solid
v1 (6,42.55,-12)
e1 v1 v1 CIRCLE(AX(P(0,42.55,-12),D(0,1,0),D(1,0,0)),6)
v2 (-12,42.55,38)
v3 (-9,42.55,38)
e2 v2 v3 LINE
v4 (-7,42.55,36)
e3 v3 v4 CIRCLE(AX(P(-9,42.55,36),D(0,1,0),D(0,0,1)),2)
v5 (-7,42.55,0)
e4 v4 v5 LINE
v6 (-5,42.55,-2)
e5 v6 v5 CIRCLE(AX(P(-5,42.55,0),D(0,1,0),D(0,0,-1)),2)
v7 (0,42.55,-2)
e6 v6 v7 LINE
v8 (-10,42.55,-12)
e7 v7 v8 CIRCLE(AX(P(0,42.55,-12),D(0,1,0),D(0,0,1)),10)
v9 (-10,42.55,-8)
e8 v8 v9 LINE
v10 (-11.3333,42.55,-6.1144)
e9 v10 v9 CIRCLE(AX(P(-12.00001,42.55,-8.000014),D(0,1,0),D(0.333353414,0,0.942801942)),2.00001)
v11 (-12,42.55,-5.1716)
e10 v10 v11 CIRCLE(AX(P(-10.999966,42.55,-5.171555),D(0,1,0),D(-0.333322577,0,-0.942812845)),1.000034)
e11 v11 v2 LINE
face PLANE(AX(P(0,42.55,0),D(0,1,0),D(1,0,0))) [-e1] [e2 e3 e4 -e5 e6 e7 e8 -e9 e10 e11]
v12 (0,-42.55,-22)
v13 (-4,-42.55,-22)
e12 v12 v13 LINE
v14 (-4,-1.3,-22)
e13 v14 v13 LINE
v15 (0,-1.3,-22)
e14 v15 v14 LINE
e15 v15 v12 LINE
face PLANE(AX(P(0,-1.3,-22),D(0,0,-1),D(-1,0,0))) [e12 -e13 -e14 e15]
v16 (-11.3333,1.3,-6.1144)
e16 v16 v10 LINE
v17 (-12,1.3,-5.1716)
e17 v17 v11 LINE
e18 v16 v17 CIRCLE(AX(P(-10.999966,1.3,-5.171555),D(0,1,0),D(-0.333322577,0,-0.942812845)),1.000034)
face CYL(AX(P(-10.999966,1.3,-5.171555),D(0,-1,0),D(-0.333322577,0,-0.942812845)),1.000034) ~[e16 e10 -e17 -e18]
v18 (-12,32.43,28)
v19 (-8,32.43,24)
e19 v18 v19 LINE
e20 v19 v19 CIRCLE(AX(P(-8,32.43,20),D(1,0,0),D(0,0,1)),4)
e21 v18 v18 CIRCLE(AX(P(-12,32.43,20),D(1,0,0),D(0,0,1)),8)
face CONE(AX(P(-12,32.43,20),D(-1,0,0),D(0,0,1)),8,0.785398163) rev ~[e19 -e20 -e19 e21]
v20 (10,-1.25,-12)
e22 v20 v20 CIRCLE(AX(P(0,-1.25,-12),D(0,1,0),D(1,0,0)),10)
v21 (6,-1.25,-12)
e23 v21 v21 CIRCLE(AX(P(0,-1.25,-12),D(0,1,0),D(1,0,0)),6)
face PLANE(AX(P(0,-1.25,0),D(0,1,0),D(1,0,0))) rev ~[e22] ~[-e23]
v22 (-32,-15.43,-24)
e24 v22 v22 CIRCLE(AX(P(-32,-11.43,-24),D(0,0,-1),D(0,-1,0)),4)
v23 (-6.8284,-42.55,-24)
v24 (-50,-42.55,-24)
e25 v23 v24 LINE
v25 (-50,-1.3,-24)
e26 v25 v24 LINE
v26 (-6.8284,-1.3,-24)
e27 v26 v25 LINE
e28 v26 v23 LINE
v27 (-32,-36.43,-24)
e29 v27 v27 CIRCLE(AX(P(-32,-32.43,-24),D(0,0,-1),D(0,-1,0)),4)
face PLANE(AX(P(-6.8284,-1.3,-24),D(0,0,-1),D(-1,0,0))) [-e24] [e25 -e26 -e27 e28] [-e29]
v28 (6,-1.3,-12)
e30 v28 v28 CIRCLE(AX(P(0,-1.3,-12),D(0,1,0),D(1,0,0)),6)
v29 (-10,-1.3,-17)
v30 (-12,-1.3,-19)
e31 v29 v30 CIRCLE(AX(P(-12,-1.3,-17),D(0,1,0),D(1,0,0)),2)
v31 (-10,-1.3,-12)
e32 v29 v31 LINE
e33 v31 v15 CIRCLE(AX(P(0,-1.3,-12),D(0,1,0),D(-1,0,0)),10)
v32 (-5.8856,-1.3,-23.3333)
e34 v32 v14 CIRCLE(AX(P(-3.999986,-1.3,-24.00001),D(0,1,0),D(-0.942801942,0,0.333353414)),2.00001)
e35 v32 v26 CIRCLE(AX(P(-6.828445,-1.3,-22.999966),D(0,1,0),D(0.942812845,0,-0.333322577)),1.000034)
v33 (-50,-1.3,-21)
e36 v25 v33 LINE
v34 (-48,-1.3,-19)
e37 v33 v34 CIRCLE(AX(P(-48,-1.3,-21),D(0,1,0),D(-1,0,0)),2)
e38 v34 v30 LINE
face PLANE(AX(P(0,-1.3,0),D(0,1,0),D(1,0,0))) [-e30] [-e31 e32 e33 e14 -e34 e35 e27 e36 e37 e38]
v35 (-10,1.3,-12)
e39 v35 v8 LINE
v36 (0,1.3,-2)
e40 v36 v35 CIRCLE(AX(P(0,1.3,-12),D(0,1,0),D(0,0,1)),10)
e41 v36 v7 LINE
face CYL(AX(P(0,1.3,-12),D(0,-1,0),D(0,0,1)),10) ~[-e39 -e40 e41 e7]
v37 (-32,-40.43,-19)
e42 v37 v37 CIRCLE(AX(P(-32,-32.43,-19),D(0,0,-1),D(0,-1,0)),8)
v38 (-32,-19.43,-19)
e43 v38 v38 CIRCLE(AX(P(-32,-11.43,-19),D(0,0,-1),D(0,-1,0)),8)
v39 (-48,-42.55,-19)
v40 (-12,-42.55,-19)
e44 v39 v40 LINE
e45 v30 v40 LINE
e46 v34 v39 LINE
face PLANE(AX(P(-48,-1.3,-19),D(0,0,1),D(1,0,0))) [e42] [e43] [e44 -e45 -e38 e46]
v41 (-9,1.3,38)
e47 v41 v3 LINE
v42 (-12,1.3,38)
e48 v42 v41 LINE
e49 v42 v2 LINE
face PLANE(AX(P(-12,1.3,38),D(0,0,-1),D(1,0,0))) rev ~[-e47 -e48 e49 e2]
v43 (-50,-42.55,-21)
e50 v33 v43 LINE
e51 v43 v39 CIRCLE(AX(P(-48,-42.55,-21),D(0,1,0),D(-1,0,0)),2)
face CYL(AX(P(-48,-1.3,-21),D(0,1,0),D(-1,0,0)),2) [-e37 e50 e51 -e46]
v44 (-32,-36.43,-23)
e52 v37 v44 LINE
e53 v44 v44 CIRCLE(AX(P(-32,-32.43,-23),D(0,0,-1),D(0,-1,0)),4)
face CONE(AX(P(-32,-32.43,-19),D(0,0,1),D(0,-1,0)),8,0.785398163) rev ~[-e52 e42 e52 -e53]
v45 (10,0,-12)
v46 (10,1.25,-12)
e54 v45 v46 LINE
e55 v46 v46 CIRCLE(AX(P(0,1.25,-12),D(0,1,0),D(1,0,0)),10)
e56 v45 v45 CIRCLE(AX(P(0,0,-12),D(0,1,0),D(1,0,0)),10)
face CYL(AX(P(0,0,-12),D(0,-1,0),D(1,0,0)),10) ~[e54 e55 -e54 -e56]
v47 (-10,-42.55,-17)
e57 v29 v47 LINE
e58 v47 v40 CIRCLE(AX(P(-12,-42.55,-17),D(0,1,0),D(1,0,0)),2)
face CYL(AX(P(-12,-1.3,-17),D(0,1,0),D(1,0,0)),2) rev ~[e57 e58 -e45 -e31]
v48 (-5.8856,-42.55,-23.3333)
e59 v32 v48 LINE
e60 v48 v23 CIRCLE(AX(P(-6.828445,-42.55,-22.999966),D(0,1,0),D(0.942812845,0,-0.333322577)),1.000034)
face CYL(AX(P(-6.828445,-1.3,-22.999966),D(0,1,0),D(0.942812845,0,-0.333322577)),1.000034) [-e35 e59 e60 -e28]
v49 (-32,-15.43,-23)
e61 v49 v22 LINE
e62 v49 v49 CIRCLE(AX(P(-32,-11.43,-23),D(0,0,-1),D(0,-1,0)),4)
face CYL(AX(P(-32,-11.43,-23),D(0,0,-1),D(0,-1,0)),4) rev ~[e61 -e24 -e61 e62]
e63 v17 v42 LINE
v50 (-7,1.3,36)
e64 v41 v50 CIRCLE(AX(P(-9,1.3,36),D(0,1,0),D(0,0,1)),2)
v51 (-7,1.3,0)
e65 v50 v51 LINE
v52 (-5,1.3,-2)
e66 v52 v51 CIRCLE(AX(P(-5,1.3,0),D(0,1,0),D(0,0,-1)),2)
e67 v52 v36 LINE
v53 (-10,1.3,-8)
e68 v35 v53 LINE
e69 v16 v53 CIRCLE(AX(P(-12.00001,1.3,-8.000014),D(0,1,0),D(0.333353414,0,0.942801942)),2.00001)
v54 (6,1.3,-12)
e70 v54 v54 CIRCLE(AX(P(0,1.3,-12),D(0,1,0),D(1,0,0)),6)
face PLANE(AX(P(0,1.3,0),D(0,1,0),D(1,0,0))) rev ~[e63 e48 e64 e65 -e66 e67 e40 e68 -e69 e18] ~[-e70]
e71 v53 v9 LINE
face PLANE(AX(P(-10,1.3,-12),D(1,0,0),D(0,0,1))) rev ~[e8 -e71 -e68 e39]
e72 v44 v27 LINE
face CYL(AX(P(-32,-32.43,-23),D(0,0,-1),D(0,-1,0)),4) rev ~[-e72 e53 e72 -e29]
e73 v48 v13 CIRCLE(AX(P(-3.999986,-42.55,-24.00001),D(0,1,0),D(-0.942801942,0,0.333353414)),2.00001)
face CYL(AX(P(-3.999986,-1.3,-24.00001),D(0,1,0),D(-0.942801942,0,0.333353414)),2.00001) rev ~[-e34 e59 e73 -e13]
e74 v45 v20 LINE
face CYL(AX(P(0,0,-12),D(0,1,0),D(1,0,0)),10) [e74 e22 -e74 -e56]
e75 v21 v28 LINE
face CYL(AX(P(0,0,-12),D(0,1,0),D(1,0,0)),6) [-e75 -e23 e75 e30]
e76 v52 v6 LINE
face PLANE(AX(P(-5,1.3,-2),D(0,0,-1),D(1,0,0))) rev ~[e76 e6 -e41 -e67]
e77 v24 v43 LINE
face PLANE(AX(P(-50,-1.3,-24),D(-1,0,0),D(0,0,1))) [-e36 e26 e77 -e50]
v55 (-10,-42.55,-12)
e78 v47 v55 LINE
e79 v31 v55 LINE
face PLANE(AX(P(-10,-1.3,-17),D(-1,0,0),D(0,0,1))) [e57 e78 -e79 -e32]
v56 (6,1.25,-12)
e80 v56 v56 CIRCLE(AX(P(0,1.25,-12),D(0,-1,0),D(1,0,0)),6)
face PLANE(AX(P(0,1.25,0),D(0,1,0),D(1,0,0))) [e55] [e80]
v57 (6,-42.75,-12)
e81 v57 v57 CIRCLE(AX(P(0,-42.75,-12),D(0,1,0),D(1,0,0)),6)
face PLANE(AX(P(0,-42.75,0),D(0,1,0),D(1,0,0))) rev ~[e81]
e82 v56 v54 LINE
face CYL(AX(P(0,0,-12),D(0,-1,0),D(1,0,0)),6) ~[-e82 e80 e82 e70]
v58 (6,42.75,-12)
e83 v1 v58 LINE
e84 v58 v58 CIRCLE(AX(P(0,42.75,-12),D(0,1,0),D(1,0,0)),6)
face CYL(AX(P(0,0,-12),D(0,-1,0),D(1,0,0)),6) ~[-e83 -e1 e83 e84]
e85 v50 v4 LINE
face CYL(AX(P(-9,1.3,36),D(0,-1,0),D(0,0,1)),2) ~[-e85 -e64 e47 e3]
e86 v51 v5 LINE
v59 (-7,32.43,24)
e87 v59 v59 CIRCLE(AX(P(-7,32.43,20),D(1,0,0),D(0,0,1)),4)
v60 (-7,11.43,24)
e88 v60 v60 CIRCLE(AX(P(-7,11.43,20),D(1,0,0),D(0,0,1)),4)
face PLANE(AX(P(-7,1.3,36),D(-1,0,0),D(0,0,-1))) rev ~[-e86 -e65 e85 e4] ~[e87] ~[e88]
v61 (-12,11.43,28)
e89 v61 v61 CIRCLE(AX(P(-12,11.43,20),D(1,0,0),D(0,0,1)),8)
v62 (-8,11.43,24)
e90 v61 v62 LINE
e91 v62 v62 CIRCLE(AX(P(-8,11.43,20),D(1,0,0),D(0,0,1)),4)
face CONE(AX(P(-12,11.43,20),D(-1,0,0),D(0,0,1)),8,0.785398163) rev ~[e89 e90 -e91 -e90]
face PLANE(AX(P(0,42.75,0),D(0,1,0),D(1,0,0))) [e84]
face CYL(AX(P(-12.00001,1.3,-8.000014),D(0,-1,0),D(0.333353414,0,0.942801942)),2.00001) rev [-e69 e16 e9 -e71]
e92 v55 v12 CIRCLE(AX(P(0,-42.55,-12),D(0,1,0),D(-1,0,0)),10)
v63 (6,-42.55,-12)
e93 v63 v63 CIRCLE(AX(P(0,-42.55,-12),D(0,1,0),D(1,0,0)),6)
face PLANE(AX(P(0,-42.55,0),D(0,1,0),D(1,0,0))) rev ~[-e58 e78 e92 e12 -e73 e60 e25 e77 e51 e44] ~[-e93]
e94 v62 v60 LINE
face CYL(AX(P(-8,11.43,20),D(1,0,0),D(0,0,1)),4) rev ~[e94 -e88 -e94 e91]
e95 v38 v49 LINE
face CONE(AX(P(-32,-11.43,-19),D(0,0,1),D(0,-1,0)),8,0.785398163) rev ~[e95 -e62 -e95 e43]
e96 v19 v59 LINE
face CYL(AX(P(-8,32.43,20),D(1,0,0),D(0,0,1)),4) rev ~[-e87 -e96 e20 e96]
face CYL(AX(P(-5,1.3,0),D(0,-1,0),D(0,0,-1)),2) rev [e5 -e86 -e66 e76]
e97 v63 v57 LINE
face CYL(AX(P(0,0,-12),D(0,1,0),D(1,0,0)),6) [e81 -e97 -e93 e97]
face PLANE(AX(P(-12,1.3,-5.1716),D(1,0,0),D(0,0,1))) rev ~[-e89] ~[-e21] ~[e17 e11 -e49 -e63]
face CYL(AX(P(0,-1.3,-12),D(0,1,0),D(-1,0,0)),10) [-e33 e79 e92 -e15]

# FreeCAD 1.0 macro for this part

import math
import FreeCAD as App
import Part
import Sketcher

V = App.Vector

doc = App.newDocument("Part")
body = doc.addObject("PartDesign::Body", "Body")

# Sketch on XZ plane
sketch1 = doc.addObject("Sketcher::SketchObject", "Sketch")
body.addObject(sketch1)
sketch1.AttachmentSupport = (doc.XZ_Plane, [""])
sketch1.MapMode = "FlatFace"
sketch1.addGeometry(Part.Circle(V(0, -12, 0), V(0, 0, 1), 10), False)
sketch1.addConstraint(Sketcher.Constraint("PointOnObject", 0, 3, -2))
sketch1.addConstraint(Sketcher.Constraint("Diameter", 0, 20.0))
sketch1.addConstraint(Sketcher.Constraint("DistanceY", 0, 3, -1, 1, 12.0))
pad1 = doc.addObject("PartDesign::Pad", "Pad")
body.addObject(pad1)
pad1.Profile = sketch1
pad1.Length = 2.5
pad1.Midplane = True

# Sketch on XZ plane
sketch2 = doc.addObject("Sketcher::SketchObject", "Sketch001")
body.addObject(sketch2)
sketch2.AttachmentSupport = (doc.XZ_Plane, [""])
sketch2.MapMode = "FlatFace"
sketch2.addGeometry(Part.Circle(V(0, -12, 0), V(0, 0, 1), 6), False)
sketch2.addConstraint(Sketcher.Constraint("PointOnObject", 0, 3, -2))
sketch2.addConstraint(Sketcher.Constraint("Diameter", 0, 12.0))
sketch2.addConstraint(Sketcher.Constraint("DistanceY", 0, 3, -1, 1, 12.0))
pad2 = doc.addObject("PartDesign::Pad", "Pad001")
body.addObject(pad2)
pad2.Profile = sketch2
pad2.Length = 85.5
pad2.Midplane = True

# Sketch on XZ plane
sketch3 = doc.addObject("Sketcher::SketchObject", "Sketch002")
body.addObject(sketch3)
sketch3.AttachmentSupport = (doc.XZ_Plane, [""])
sketch3.MapMode = "FlatFace"
sketch3.AttachmentOffset = App.Placement(V(0, 0, 1.3), App.Rotation())
sketch3.addGeometry(Part.LineSegment(V(-6.8, -24, 0), V(-50, -24, 0)), False)
sketch3.addGeometry(Part.LineSegment(V(-50, -24, 0), V(-50, -21, 0)), False)
sketch3.addGeometry(Part.ArcOfCircle(Part.Circle(V(-48, -21, 0), V(0, 0, 1), 2), math.radians(90), math.radians(180)), False)
sketch3.addGeometry(Part.LineSegment(V(-48, -19, 0), V(-12, -19, 0)), False)
sketch3.addGeometry(Part.ArcOfCircle(Part.Circle(V(-12, -17, 0), V(0, 0, 1), 2), math.radians(-90), math.radians(0)), False)
sketch3.addGeometry(Part.LineSegment(V(-10, -17, 0), V(-10, -12, 0)), False)
sketch3.addGeometry(Part.ArcOfCircle(Part.Circle(V(0, -12, 0), V(0, 0, 1), 10), math.radians(-90), math.radians(180)), False)
sketch3.addGeometry(Part.LineSegment(V(0, -22, 0), V(-4, -22, 0)), False)
sketch3.addGeometry(Part.ArcOfCircle(Part.Circle(V(-4, -24, 0), V(0, 0, 1), 2), math.radians(90), math.radians(161)), False)
sketch3.addGeometry(Part.ArcOfCircle(Part.Circle(V(-6.8, -23, 0), V(0, 0, 1), 1), math.radians(-90), math.radians(-19)), False)
sketch3.addGeometry(Part.Circle(V(0, -12, 0), V(0, 0, 1), 6), False)
sketch3.addConstraint(Sketcher.Constraint("Coincident", 0, 2, 1, 1))
sketch3.addConstraint(Sketcher.Constraint("Tangent", 1, 2, 2, 2))
sketch3.addConstraint(Sketcher.Constraint("Tangent", 2, 1, 3, 1))
sketch3.addConstraint(Sketcher.Constraint("Tangent", 3, 2, 4, 1))
sketch3.addConstraint(Sketcher.Constraint("Tangent", 4, 2, 5, 1))
sketch3.addConstraint(Sketcher.Constraint("Tangent", 5, 2, 6, 2))
sketch3.addConstraint(Sketcher.Constraint("Tangent", 6, 1, 7, 1))
sketch3.addConstraint(Sketcher.Constraint("Tangent", 7, 2, 8, 1))
sketch3.addConstraint(Sketcher.Constraint("Tangent", 8, 2, 9, 2))
sketch3.addConstraint(Sketcher.Constraint("Tangent", 9, 1, 0, 1))
sketch3.addConstraint(Sketcher.Constraint("Horizontal", 0))
sketch3.addConstraint(Sketcher.Constraint("Vertical", 1))
sketch3.addConstraint(Sketcher.Constraint("Horizontal", 3))
sketch3.addConstraint(Sketcher.Constraint("Vertical", 5))
sketch3.addConstraint(Sketcher.Constraint("Horizontal", 7))
sketch3.addConstraint(Sketcher.Constraint("Coincident", 10, 3, 6, 3))
sketch3.addConstraint(Sketcher.Constraint("Equal", 2, 4))
sketch3.addConstraint(Sketcher.Constraint("Equal", 4, 8))
sketch3.addConstraint(Sketcher.Constraint("PointOnObject", 6, 3, -2))
sketch3.addConstraint(Sketcher.Constraint("Horizontal", 8, 3, 0, 2))
sketch3.addConstraint(Sketcher.Constraint("Diameter", 10, 12.0))
sketch3.addConstraint(Sketcher.Constraint("Radius", 2, 2.0))
sketch3.addConstraint(Sketcher.Constraint("Radius", 6, 10.0))
sketch3.addConstraint(Sketcher.Constraint("Radius", 9, 1.0))
sketch3.addConstraint(Sketcher.Constraint("DistanceX", 3, 1, 3, 2, 36.0))
sketch3.addConstraint(Sketcher.Constraint("DistanceX", 7, 2, 7, 1, 4.0))
sketch3.addConstraint(Sketcher.Constraint("DistanceY", 1, 1, 1, 2, 3.0))
sketch3.addConstraint(Sketcher.Constraint("DistanceY", 2, 3, -1, 1, 21.0))
pad3 = doc.addObject("PartDesign::Pad", "Pad002")
body.addObject(pad3)
pad3.Profile = sketch3
pad3.Length = 41.25

# Sketch on XZ plane
sketch4 = doc.addObject("Sketcher::SketchObject", "Sketch003")
body.addObject(sketch4)
sketch4.AttachmentSupport = (doc.XZ_Plane, [""])
sketch4.MapMode = "FlatFace"
sketch4.AttachmentOffset = App.Placement(V(0, 0, -1.3), App.Rotation())
sketch4.addGeometry(Part.LineSegment(V(-12, -5.2, 0), V(-12, 38, 0)), False)
sketch4.addGeometry(Part.LineSegment(V(-12, 38, 0), V(-9, 38, 0)), False)
sketch4.addGeometry(Part.ArcOfCircle(Part.Circle(V(-9, 36, 0), V(0, 0, 1), 2), math.radians(0), math.radians(90)), False)
sketch4.addGeometry(Part.LineSegment(V(-7, 36, 0), V(-7, 0, 0)), False)
sketch4.addGeometry(Part.ArcOfCircle(Part.Circle(V(-5, 0, 0), V(0, 0, 1), 2), math.radians(180), math.radians(270)), False)
sketch4.addGeometry(Part.LineSegment(V(-5, -2, 0), V(0, -2, 0)), False)
sketch4.addGeometry(Part.ArcOfCircle(Part.Circle(V(0, -12, 0), V(0, 0, 1), 10), math.radians(180), math.radians(450)), False)
sketch4.addGeometry(Part.LineSegment(V(-10, -12, 0), V(-10, -8, 0)), False)
sketch4.addGeometry(Part.ArcOfCircle(Part.Circle(V(-12, -8, 0), V(0, 0, 1), 2), math.radians(0), math.radians(71)), False)
sketch4.addGeometry(Part.ArcOfCircle(Part.Circle(V(-11, -5.2, 0), V(0, 0, 1), 1), math.radians(180), math.radians(251)), False)
sketch4.addGeometry(Part.Circle(V(0, -12, 0), V(0, 0, 1), 6), False)
sketch4.addConstraint(Sketcher.Constraint("Coincident", 0, 2, 1, 1))
sketch4.addConstraint(Sketcher.Constraint("Tangent", 1, 2, 2, 2))
sketch4.addConstraint(Sketcher.Constraint("Tangent", 2, 1, 3, 1))
sketch4.addConstraint(Sketcher.Constraint("Tangent", 3, 2, 4, 1))
sketch4.addConstraint(Sketcher.Constraint("Tangent", 4, 2, 5, 1))
sketch4.addConstraint(Sketcher.Constraint("Tangent", 5, 2, 6, 2))
sketch4.addConstraint(Sketcher.Constraint("Tangent", 6, 1, 7, 1))
sketch4.addConstraint(Sketcher.Constraint("Tangent", 7, 2, 8, 1))
sketch4.addConstraint(Sketcher.Constraint("Tangent", 8, 2, 9, 2))
sketch4.addConstraint(Sketcher.Constraint("Tangent", 9, 1, 0, 1))
sketch4.addConstraint(Sketcher.Constraint("Vertical", 0))
sketch4.addConstraint(Sketcher.Constraint("Horizontal", 1))
sketch4.addConstraint(Sketcher.Constraint("Vertical", 3))
sketch4.addConstraint(Sketcher.Constraint("Horizontal", 5))
sketch4.addConstraint(Sketcher.Constraint("Vertical", 7))
sketch4.addConstraint(Sketcher.Constraint("Coincident", 10, 3, 6, 3))
sketch4.addConstraint(Sketcher.Constraint("Equal", 2, 4))
sketch4.addConstraint(Sketcher.Constraint("Equal", 4, 8))
sketch4.addConstraint(Sketcher.Constraint("PointOnObject", 4, 3, -1))
sketch4.addConstraint(Sketcher.Constraint("PointOnObject", 6, 3, -2))
sketch4.addConstraint(Sketcher.Constraint("Vertical", 8, 3, 0, 2))
sketch4.addConstraint(Sketcher.Constraint("Diameter", 10, 12.0))
sketch4.addConstraint(Sketcher.Constraint("Radius", 2, 2.0))
sketch4.addConstraint(Sketcher.Constraint("Radius", 6, 10.0))
sketch4.addConstraint(Sketcher.Constraint("Radius", 9, 1.0))
sketch4.addConstraint(Sketcher.Constraint("DistanceX", 1, 1, 1, 2, 3.0))
sketch4.addConstraint(Sketcher.Constraint("DistanceY", 3, 2, 3, 1, 36.0))
sketch4.addConstraint(Sketcher.Constraint("DistanceY", 7, 1, 7, 2, 4.0))
pad4 = doc.addObject("PartDesign::Pad", "Pad003")
body.addObject(pad4)
pad4.Profile = sketch4
pad4.Length = 41.25
pad4.Reversed = True

# Sketch on YZ plane
sketch5 = doc.addObject("Sketcher::SketchObject", "Sketch004")
body.addObject(sketch5)
sketch5.AttachmentSupport = (doc.YZ_Plane, [""])
sketch5.MapMode = "FlatFace"
sketch5.AttachmentOffset = App.Placement(V(0, 0, -12), App.Rotation())
sketch5.addGeometry(Part.Circle(V(11.4, 20, 0), V(0, 0, 1), 4), False)
sketch5.addConstraint(Sketcher.Constraint("Diameter", 0, 8.0))
sketch5.addConstraint(Sketcher.Constraint("DistanceY", -1, 1, 0, 3, 20.0))
sketch5.addConstraint(Sketcher.Constraint("DistanceX", -1, 1, 0, 3, 11.43))
doc.recompute()
hole = doc.addObject("PartDesign::Hole", "Hole")
body.addObject(hole)
hole.Profile = sketch5
hole.ThreadType = "None"
hole.Diameter = 8
hole.DepthType = "Dimension"
hole.Depth = 5
hole.DrillPoint = "Flat"
hole.HoleCutType = "Countersink"
hole.HoleCutDiameter = 16
hole.HoleCutCountersinkAngle = 90
hole.Reversed = True

# Sketch on YZ plane
sketch6 = doc.addObject("Sketcher::SketchObject", "Sketch005")
body.addObject(sketch6)
sketch6.AttachmentSupport = (doc.YZ_Plane, [""])
sketch6.MapMode = "FlatFace"
sketch6.AttachmentOffset = App.Placement(V(0, 0, -12), App.Rotation())
sketch6.addGeometry(Part.Circle(V(32.4, 20, 0), V(0, 0, 1), 4), False)
sketch6.addConstraint(Sketcher.Constraint("Diameter", 0, 8.0))
sketch6.addConstraint(Sketcher.Constraint("DistanceY", -1, 1, 0, 3, 20.0))
sketch6.addConstraint(Sketcher.Constraint("DistanceX", -1, 1, 0, 3, 32.43))
doc.recompute()
hole2 = doc.addObject("PartDesign::Hole", "Hole001")
body.addObject(hole2)
hole2.Profile = sketch6
hole2.ThreadType = "None"
hole2.Diameter = 8
hole2.DepthType = "Dimension"
hole2.Depth = 5
hole2.DrillPoint = "Flat"
hole2.HoleCutType = "Countersink"
hole2.HoleCutDiameter = 16
hole2.HoleCutCountersinkAngle = 90
hole2.Reversed = True

# Sketch on XY plane
sketch7 = doc.addObject("Sketcher::SketchObject", "Sketch006")
body.addObject(sketch7)
sketch7.AttachmentSupport = (doc.XY_Plane, [""])
sketch7.MapMode = "FlatFace"
sketch7.AttachmentOffset = App.Placement(V(0, 0, -19), App.Rotation())
sketch7.addGeometry(Part.Circle(V(-32, -11.4, 0), V(0, 0, 1), 4), False)
sketch7.addConstraint(Sketcher.Constraint("Diameter", 0, 8.0))
sketch7.addConstraint(Sketcher.Constraint("DistanceX", 0, 3, -1, 1, 32.0))
sketch7.addConstraint(Sketcher.Constraint("DistanceY", 0, 3, -1, 1, 11.43))
doc.recompute()
hole3 = doc.addObject("PartDesign::Hole", "Hole002")
body.addObject(hole3)
hole3.Profile = sketch7
hole3.ThreadType = "None"
hole3.Diameter = 8
hole3.DepthType = "Dimension"
hole3.Depth = 5
hole3.DrillPoint = "Flat"
hole3.HoleCutType = "Countersink"
hole3.HoleCutDiameter = 16
hole3.HoleCutCountersinkAngle = 90

# Sketch on XY plane
sketch8 = doc.addObject("Sketcher::SketchObject", "Sketch007")
body.addObject(sketch8)
sketch8.AttachmentSupport = (doc.XY_Plane, [""])
sketch8.MapMode = "FlatFace"
sketch8.AttachmentOffset = App.Placement(V(0, 0, -19), App.Rotation())
sketch8.addGeometry(Part.Circle(V(-32, -32.4, 0), V(0, 0, 1), 4), False)
sketch8.addConstraint(Sketcher.Constraint("Diameter", 0, 8.0))
sketch8.addConstraint(Sketcher.Constraint("DistanceX", 0, 3, -1, 1, 32.0))
sketch8.addConstraint(Sketcher.Constraint("DistanceY", 0, 3, -1, 1, 32.43))
doc.recompute()
hole4 = doc.addObject("PartDesign::Hole", "Hole003")
body.addObject(hole4)
hole4.Profile = sketch8
hole4.ThreadType = "None"
hole4.Diameter = 8
hole4.DepthType = "Dimension"
hole4.Depth = 5
hole4.DrillPoint = "Flat"
hole4.HoleCutType = "Countersink"
hole4.HoleCutDiameter = 16
hole4.HoleCutCountersinkAngle = 90

doc.recompute()
